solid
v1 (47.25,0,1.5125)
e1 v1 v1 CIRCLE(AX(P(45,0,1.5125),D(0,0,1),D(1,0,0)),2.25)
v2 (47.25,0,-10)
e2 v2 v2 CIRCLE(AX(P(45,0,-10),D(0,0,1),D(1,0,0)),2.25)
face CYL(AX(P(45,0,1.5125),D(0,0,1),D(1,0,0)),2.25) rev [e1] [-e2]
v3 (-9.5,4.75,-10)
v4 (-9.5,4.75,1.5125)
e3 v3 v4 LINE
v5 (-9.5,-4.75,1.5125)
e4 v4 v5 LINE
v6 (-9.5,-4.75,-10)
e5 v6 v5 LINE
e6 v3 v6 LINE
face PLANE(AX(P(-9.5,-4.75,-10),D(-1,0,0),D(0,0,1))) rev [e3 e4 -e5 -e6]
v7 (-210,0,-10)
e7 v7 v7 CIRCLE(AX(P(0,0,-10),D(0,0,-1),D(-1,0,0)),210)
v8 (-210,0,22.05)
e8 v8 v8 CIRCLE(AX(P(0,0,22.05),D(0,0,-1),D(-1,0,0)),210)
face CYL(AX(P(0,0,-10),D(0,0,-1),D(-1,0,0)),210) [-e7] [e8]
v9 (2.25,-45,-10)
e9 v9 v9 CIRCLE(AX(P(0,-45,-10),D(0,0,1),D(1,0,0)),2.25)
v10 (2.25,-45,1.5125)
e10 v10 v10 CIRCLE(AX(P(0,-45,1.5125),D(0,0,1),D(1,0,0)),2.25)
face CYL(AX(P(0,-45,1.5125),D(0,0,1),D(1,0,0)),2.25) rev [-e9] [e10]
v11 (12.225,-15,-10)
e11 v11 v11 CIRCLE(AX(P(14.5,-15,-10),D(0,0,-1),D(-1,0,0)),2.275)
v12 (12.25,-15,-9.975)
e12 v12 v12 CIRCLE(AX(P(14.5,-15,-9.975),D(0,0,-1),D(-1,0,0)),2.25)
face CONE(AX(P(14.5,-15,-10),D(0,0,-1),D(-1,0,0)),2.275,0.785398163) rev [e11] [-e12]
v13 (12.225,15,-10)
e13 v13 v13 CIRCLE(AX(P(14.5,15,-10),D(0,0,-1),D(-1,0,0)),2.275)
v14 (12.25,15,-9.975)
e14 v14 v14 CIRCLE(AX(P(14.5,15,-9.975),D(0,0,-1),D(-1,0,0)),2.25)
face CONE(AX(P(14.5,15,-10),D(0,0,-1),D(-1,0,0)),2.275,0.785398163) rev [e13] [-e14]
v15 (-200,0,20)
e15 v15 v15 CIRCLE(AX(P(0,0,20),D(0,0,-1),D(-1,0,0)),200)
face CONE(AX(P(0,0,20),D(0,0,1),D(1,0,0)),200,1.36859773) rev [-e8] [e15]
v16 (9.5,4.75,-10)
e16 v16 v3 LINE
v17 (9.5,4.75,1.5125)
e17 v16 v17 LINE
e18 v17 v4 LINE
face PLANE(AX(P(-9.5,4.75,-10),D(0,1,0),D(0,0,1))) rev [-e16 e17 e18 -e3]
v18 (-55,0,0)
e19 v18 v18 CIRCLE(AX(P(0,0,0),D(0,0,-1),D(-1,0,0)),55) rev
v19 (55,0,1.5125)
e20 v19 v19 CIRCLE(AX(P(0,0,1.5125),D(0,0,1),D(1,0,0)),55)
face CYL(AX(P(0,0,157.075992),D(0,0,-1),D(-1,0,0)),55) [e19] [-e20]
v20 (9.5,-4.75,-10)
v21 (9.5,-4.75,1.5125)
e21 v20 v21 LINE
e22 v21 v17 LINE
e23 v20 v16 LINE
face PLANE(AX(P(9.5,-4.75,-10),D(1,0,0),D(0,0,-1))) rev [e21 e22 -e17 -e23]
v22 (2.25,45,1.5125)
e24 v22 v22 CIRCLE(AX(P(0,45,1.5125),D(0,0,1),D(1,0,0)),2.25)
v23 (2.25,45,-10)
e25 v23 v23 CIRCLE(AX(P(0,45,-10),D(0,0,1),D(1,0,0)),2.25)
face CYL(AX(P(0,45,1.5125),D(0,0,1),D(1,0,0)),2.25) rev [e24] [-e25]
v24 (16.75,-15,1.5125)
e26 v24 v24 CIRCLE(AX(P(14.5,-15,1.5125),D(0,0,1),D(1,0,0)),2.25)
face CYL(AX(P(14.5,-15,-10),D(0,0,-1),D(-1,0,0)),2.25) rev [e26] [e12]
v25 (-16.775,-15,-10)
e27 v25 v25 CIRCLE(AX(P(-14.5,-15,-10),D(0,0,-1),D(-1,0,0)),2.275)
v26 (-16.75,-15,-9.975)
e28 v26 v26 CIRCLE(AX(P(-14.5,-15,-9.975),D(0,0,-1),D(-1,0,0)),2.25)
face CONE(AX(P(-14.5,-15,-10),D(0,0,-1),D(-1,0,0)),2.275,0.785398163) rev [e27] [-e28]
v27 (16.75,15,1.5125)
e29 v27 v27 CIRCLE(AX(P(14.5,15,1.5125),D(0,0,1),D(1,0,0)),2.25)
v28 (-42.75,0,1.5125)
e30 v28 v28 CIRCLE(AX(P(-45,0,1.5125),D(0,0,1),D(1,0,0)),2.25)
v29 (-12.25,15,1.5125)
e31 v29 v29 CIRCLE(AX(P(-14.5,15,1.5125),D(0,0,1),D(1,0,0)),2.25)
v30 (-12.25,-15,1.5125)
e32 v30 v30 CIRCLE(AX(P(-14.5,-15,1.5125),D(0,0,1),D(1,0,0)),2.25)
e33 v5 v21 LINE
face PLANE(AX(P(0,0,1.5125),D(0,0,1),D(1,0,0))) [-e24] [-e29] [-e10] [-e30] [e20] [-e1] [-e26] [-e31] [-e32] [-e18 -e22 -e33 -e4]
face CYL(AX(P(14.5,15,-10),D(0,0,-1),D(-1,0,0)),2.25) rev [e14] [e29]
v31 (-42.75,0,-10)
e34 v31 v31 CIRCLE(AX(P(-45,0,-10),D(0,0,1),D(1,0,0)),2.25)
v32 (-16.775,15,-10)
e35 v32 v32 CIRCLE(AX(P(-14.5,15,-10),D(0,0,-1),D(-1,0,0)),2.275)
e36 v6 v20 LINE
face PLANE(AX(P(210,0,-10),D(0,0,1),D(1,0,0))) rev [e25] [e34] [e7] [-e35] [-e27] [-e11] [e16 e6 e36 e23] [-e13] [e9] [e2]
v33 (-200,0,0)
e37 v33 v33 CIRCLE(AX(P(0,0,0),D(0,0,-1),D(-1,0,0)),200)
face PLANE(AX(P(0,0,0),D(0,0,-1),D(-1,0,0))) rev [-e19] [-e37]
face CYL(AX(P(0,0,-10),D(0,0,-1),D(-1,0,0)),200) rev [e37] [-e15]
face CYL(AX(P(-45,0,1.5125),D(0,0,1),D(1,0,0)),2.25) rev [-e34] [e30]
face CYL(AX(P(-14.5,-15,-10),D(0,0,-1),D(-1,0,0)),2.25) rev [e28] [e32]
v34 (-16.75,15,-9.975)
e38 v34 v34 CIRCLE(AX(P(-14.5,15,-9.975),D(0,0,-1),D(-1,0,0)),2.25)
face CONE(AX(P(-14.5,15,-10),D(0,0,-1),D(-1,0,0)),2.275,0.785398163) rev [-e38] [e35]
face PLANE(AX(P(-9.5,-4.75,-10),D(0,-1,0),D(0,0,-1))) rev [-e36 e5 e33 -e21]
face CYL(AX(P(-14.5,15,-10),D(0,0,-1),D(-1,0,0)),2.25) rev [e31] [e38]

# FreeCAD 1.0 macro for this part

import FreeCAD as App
import Part
import Sketcher
from FreeCAD import Vector
Q = App.Units.Quantity


def add_polygon(sketch, points):
    """Adds a closed chain of lines whose ends are joined by coincident constraints."""
    first, n = sketch.GeometryCount, len(points)
    for a, b in zip(points, points[1:] + points[:1]):
        sketch.addGeometry(Part.LineSegment(App.Vector(*a, 0), App.Vector(*b, 0)), False)
    for i in range(n):
        sketch.addConstraint(Sketcher.Constraint("Coincident", first + i, 2, first + (i + 1) % n, 1))

doc = App.newDocument("Part")
params = doc.addObject("Spreadsheet::Sheet", "Params")
for row, (alias, value) in enumerate([
    ("sketch1_width", "200 mm"),
    ("sketch1_width2", "210 mm"),
    ("sketch1_height", "20 mm"),
    ("sketch1_height2", "10 mm"),
    ("sketch1_height3", "32.05 mm"),
    ("revolution_angle", "360 deg"),
    ("sketch2_width", "19 mm"),
    ("sketch2_height", "9.5 mm"),
    ("sketch3_diameter", "110 mm"),
    ("pad1_length", "1.5125 mm"),
    ("sketch4_width", "19 mm"),
    ("sketch4_height", "9.5 mm"),
    ("pocket2_length", "2 mm"),
    ("sketch5_diameter", "4.5 mm"),
    ("hole_diameter", "4.5 mm"),
    ("sketch6_diameter", "4.5 mm"),
    ("hole2_diameter", "4.5 mm"),
    ("hole2_csink_diameter", "4.55 mm"),
], start=1):
    params.set(f"A{row}", alias)
    params.set(f"B{row}", "=" + value)
    params.setAlias(f"B{row}", alias)

body = doc.addObject("PartDesign::Body", "Body")

# Sketch on XZ plane
sketch1 = doc.addObject("Sketcher::SketchObject", "Sketch")
body.addObject(sketch1)
sketch1.AttachmentSupport = (doc.XZ_Plane, [""])
sketch1.MapMode = "FlatFace"
add_polygon(sketch1, [(0, 0), (200, 0), (200, 20), (210, 22), (210, -10), (0, -10)])  # lines 0-5
sketch1.addConstraint([
    Sketcher.Constraint("Horizontal", 0),
    Sketcher.Constraint("Vertical", 1),
    Sketcher.Constraint("Vertical", 3),
    Sketcher.Constraint("Horizontal", 4),
    Sketcher.Constraint("Vertical", 5),
    Sketcher.Constraint("Coincident", 5, 2, -1, 1),
    Sketcher.Constraint("DistanceX", 0, 1, 0, 2, Q("200 mm")),
    Sketcher.Constraint("DistanceX", 4, 2, 4, 1, Q("210 mm")),
    Sketcher.Constraint("DistanceY", 1, 1, 1, 2, Q("20 mm")),
    Sketcher.Constraint("DistanceY", 5, 1, 5, 2, Q("10 mm")),
    Sketcher.Constraint("DistanceY", 3, 2, 3, 1, Q("32.05 mm")),
])
sketch1.setExpression("Constraints[12]", "Params.sketch1_width")
sketch1.setExpression("Constraints[13]", "Params.sketch1_width2")
sketch1.setExpression("Constraints[14]", "Params.sketch1_height")
sketch1.setExpression("Constraints[15]", "Params.sketch1_height2")
sketch1.setExpression("Constraints[16]", "Params.sketch1_height3")
revolution = doc.addObject("PartDesign::Revolution", "Revolution")
body.addObject(revolution)
revolution.Profile = sketch1
revolution.ReferenceAxis = (sketch1, ["V_Axis"])
revolution.setExpression("Angle", "Params.revolution_angle")

# Sketch on XY plane
sketch2 = doc.addObject("Sketcher::SketchObject", "Sketch001")
body.addObject(sketch2)
sketch2.AttachmentSupport = (doc.XY_Plane, [""])
sketch2.MapMode = "FlatFace"
add_polygon(sketch2, [(-10, 5), (-10, -5), (10, -5), (10, 5)])  # lines 0-3
sketch2.addConstraint([
    Sketcher.Constraint("Vertical", 0),
    Sketcher.Constraint("Horizontal", 1),
    Sketcher.Constraint("Vertical", 2),
    Sketcher.Constraint("Horizontal", 3),
    Sketcher.Constraint("Symmetric", 0, 2, 2, 2, -1, 1),
    Sketcher.Constraint("DistanceX", 1, 1, 1, 2, Q("19 mm")),
    Sketcher.Constraint("DistanceY", 0, 2, 0, 1, Q("9.5 mm")),
])
sketch2.setExpression("Constraints[9]", "Params.sketch2_width")
sketch2.setExpression("Constraints[10]", "Params.sketch2_height")
pocket1 = doc.addObject("PartDesign::Pocket", "Pocket")
body.addObject(pocket1)
pocket1.Profile = sketch2
pocket1.Type = "ThroughAll"
pocket1.Midplane = True

# Sketch on XY plane
sketch3 = doc.addObject("Sketcher::SketchObject", "Sketch002")
body.addObject(sketch3)
sketch3.AttachmentSupport = (doc.XY_Plane, [""])
sketch3.MapMode = "FlatFace"
sketch3.addGeometry(Part.Circle(Vector(0, 0, 0), Vector(0, 0, 1), 55), False)
sketch3.addConstraint([
    Sketcher.Constraint("Coincident", 0, 3, -1, 1),
    Sketcher.Constraint("Diameter", 0, Q("110 mm")),
])
sketch3.setExpression("Constraints[1]", "Params.sketch3_diameter")
pad1 = doc.addObject("PartDesign::Pad", "Pad")
body.addObject(pad1)
pad1.Profile = sketch3
pad1.setExpression("Length", "Params.pad1_length")

# Sketch on XY plane
sketch4 = doc.addObject("Sketcher::SketchObject", "Sketch003")
body.addObject(sketch4)
sketch4.AttachmentSupport = (doc.XY_Plane, [""])
sketch4.MapMode = "FlatFace"
sketch4.AttachmentOffset = App.Placement(Vector(0, 0, 1.5125), App.Rotation())
add_polygon(sketch4, [(-10, 5), (-10, -5), (10, -5), (10, 5)])  # lines 0-3
sketch4.addConstraint([
    Sketcher.Constraint("Vertical", 0),
    Sketcher.Constraint("Horizontal", 1),
    Sketcher.Constraint("Vertical", 2),
    Sketcher.Constraint("Horizontal", 3),
    Sketcher.Constraint("Symmetric", 0, 2, 2, 2, -1, 1),
    Sketcher.Constraint("DistanceX", 1, 1, 1, 2, Q("19 mm")),
    Sketcher.Constraint("DistanceY", 0, 2, 0, 1, Q("9.5 mm")),
])
sketch4.setExpression("Constraints[9]", "Params.sketch4_width")
sketch4.setExpression("Constraints[10]", "Params.sketch4_height")
pocket2 = doc.addObject("PartDesign::Pocket", "Pocket001")
body.addObject(pocket2)
pocket2.Profile = sketch4
pocket2.setExpression("Length", "Params.pocket2_length")

# Sketch on XY plane
sketch5 = doc.addObject("Sketcher::SketchObject", "Sketch004")
body.addObject(sketch5)
sketch5.AttachmentSupport = (doc.XY_Plane, [""])
sketch5.MapMode = "FlatFace"
sketch5.AttachmentOffset = App.Placement(Vector(0, 0, 1.5125), App.Rotation())
sketch5.addGeometry(Part.Circle(Vector(0, 45, 0), Vector(0, 0, 1), 2.2), False)
sketch5.addConstraint([
    Sketcher.Constraint("PointOnObject", 0, 3, -2),
    Sketcher.Constraint("Diameter", 0, Q("4.5 mm")),
    Sketcher.Constraint("DistanceY", -1, 1, 0, 3, Q("45 mm")),
])
sketch5.setExpression("Constraints[1]", "Params.sketch5_diameter")
doc.recompute()
hole = doc.addObject("PartDesign::Hole", "Hole")
body.addObject(hole)
hole.Profile = sketch5
hole.ThreadType = "None"
hole.setExpression("Diameter", "Params.hole_diameter")
hole.DepthType = "ThroughAll"
doc.recompute()

polarpattern = doc.addObject("PartDesign::PolarPattern", "PolarPattern")
body.addObject(polarpattern)
polarpattern.Originals = [hole]
polarpattern.Axis = (doc.Z_Axis, [""])
polarpattern.Angle = 360
polarpattern.Occurrences = 4
body.Tip = polarpattern

# Sketch on XY plane
sketch6 = doc.addObject("Sketcher::SketchObject", "Sketch005")
body.addObject(sketch6)
sketch6.AttachmentSupport = (doc.XY_Plane, [""])
sketch6.MapMode = "FlatFace"
sketch6.AttachmentOffset = App.Placement(Vector(0, 0, -10), App.Rotation())
sketch6.addGeometry([
    Part.Circle(Vector(-14.5, 15, 0), Vector(0, 0, 1), 2.2),
    Part.Circle(Vector(14.5, 15, 0), Vector(0, 0, 1), 2.2),
    Part.Circle(Vector(14.5, -15, 0), Vector(0, 0, 1), 2.2),
    Part.Circle(Vector(-14.5, -15, 0), Vector(0, 0, 1), 2.2),
], False)
sketch6.addConstraint([
    Sketcher.Constraint("Equal", 0, 1),
    Sketcher.Constraint("Equal", 1, 2),
    Sketcher.Constraint("Equal", 2, 3),
    Sketcher.Constraint("Symmetric", 0, 3, 2, 3, -1, 1),
    Sketcher.Constraint("Symmetric", 1, 3, 3, 3, -1, 1),
    Sketcher.Constraint("Symmetric", 0, 3, 1, 3, -2),
    Sketcher.Constraint("Diameter", 0, Q("4.5 mm")),
    Sketcher.Constraint("DistanceY", -1, 1, 0, 3, Q("15 mm")),
    Sketcher.Constraint("DistanceX", 0, 3, 1, 3, Q("29 mm")),
])
sketch6.setExpression("Constraints[6]", "Params.sketch6_diameter")
doc.recompute()
hole2 = doc.addObject("PartDesign::Hole", "Hole001")
body.addObject(hole2)
hole2.Profile = sketch6
hole2.ThreadType = "None"
hole2.setExpression("Diameter", "Params.hole2_diameter")
hole2.DepthType = "ThroughAll"
hole2.HoleCutType = "Countersink"
hole2.setExpression("HoleCutDiameter", "Params.hole2_csink_diameter")
hole2.HoleCutCountersinkAngle = 90
hole2.Reversed = True

doc.recompute()
